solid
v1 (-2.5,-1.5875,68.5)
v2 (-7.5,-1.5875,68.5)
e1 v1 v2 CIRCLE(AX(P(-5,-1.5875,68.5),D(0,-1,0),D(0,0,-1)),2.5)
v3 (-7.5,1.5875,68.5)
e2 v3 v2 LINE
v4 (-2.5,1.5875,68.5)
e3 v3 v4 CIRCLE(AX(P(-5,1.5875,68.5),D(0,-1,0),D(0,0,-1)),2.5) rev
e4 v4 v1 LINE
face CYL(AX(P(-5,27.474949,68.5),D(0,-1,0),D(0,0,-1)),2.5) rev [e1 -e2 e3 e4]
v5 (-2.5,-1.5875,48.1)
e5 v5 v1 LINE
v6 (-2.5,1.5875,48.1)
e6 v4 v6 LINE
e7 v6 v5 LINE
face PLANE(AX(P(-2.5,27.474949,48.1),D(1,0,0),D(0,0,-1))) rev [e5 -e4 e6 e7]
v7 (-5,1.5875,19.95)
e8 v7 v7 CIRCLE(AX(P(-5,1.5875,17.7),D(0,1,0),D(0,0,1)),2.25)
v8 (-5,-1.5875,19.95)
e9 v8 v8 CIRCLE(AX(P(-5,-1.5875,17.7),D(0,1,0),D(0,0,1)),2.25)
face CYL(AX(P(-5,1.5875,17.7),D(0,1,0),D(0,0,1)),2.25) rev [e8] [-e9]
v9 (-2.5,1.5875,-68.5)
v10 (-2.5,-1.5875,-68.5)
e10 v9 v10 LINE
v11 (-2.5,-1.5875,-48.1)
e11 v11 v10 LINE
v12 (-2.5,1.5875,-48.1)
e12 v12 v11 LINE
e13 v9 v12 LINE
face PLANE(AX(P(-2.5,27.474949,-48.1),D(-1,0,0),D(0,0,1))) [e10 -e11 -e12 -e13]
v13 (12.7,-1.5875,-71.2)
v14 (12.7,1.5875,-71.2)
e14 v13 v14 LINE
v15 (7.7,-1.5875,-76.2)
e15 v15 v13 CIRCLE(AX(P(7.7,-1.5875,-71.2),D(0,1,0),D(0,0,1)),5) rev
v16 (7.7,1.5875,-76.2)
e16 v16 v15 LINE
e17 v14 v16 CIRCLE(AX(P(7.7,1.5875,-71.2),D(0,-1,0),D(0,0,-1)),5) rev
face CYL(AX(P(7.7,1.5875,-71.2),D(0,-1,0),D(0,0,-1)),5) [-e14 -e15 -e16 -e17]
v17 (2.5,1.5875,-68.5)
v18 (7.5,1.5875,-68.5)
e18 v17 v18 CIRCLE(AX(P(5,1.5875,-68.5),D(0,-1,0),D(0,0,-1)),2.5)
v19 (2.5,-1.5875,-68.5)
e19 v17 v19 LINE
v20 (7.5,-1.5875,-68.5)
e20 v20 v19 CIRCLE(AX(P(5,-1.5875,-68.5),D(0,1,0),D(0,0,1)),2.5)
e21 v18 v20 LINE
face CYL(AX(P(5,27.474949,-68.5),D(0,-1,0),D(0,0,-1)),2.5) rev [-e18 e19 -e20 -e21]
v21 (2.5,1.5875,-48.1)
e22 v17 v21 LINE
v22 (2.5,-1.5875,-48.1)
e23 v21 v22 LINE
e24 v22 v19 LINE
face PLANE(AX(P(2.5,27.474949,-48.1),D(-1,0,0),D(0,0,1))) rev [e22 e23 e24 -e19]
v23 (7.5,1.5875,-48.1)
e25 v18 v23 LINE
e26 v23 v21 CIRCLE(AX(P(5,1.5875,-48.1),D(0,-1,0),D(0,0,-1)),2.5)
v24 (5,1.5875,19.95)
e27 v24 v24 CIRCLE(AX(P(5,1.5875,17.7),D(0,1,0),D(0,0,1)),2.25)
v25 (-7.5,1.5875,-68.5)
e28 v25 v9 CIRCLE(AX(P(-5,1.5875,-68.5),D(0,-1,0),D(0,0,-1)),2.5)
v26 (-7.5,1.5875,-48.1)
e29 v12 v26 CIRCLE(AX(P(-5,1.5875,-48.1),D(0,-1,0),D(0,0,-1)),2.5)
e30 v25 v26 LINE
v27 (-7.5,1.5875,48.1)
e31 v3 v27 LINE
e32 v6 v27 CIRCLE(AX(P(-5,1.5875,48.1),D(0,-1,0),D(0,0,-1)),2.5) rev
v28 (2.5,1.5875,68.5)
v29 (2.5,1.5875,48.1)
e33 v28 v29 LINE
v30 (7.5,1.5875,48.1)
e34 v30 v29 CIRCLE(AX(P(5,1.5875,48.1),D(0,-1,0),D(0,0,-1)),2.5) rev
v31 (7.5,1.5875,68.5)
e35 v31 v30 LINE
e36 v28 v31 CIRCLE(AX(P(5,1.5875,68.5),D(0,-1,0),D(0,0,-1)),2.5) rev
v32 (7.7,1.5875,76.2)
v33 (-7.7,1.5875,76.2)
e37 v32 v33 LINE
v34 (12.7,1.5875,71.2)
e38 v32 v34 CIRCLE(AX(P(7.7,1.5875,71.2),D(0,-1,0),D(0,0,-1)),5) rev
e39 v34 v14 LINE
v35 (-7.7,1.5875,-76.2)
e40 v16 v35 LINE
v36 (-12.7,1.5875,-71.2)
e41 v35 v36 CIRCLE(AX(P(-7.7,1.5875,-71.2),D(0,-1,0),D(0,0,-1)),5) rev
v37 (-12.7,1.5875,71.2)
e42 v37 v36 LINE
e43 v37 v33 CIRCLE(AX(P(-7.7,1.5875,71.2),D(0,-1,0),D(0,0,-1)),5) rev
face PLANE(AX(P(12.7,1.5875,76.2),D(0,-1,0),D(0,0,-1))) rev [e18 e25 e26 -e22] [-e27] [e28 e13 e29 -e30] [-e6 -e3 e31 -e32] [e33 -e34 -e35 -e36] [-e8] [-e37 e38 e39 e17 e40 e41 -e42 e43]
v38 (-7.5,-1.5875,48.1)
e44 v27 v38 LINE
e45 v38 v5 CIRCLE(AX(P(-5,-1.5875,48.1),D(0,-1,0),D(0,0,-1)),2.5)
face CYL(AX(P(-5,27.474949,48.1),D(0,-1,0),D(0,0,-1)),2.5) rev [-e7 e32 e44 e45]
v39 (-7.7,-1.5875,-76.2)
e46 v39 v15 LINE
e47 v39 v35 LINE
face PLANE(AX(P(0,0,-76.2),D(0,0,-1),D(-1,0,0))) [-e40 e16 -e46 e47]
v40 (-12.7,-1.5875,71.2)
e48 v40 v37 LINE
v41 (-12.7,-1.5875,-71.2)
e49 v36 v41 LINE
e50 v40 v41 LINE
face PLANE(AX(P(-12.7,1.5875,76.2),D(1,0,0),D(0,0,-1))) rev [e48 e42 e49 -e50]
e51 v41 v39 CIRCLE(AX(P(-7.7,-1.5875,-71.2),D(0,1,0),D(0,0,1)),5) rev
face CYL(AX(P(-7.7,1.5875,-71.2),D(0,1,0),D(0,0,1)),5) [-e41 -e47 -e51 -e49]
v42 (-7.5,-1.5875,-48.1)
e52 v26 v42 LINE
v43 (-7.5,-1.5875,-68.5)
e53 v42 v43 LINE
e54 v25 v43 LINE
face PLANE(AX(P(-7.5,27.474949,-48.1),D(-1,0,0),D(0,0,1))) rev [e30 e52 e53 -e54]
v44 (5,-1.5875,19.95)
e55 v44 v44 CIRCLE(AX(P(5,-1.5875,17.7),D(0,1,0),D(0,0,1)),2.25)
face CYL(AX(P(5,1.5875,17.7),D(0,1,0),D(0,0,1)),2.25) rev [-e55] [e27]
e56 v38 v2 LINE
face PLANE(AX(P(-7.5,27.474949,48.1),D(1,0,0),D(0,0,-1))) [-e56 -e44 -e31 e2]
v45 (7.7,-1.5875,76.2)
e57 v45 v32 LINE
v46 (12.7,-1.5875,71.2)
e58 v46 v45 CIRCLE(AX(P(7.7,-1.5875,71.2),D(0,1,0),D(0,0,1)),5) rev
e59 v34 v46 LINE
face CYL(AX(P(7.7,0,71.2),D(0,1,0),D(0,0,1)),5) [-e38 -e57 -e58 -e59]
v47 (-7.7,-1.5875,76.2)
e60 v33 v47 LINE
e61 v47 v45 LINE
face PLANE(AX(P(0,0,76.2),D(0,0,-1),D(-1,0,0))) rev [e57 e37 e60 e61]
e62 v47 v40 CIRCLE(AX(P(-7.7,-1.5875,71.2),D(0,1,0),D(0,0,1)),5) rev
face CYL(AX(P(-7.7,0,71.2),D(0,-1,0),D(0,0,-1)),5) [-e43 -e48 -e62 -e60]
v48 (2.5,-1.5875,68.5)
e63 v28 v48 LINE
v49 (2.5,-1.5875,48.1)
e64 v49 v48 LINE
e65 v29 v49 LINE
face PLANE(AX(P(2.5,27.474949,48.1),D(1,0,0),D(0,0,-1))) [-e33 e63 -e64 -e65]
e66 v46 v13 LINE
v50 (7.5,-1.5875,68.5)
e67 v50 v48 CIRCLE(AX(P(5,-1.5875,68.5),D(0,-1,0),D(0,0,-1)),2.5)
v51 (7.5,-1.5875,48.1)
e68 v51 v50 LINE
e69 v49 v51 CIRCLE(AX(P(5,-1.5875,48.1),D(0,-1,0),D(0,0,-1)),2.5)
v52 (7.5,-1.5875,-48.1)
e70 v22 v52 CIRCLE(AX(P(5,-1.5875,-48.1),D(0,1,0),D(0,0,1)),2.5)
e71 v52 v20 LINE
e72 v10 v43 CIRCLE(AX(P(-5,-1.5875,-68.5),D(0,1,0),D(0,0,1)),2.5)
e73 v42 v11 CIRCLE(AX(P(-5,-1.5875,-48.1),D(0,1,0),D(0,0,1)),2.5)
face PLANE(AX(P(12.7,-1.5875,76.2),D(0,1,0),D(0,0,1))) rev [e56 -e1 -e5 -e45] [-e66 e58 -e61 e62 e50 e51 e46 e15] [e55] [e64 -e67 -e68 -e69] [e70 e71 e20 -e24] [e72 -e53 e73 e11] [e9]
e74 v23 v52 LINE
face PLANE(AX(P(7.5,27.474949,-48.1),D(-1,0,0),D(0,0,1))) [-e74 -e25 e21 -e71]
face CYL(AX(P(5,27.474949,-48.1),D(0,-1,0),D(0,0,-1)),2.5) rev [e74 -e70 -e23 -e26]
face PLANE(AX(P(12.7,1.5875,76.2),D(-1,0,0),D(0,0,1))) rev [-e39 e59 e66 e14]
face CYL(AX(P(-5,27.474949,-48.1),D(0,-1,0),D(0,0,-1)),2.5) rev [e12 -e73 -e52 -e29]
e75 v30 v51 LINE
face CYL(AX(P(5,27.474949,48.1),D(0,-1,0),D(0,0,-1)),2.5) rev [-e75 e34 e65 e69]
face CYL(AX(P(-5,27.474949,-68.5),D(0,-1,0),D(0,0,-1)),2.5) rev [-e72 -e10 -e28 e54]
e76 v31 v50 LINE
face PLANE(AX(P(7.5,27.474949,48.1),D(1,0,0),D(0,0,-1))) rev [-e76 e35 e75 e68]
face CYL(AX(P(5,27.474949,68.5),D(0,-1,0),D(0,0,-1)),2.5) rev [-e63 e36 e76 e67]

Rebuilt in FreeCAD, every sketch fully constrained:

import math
import FreeCAD as App
import Part
import Sketcher
from FreeCAD import Vector


def edges_at(feature, points):
    """Names of the edges that pass closest to the given points."""
    edges = feature.Shape.Edges
    near = lambda p: min(range(len(edges)), key=lambda i: edges[i].distToShape(Part.Vertex(*p))[0])
    return sorted({f"Edge{near(p) + 1}" for p in points})

doc = App.newDocument("Part")
body = doc.addObject("PartDesign::Body", "Body")

# Sketch on XY plane
sketch1 = body.newObject("Sketcher::SketchObject", "Sketch")
sketch1.AttachmentSupport = (doc.getObject("XY_Plane"), [""])
sketch1.MapMode = "FlatFace"
sketch1.addGeometry(Part.LineSegment(Vector(-12.7, 1.6, 0), Vector(-12.7, -1.6, 0)), False)
sketch1.addGeometry(Part.LineSegment(Vector(-12.7, -1.6, 0), Vector(12.7, -1.6, 0)), False)
sketch1.addGeometry(Part.LineSegment(Vector(12.7, -1.6, 0), Vector(12.7, 1.6, 0)), False)
sketch1.addGeometry(Part.LineSegment(Vector(12.7, 1.6, 0), Vector(-12.7, 1.6, 0)), False)
sketch1.addConstraint(Sketcher.Constraint("Coincident", 0, 2, 1, 1))
sketch1.addConstraint(Sketcher.Constraint("Coincident", 1, 2, 2, 1))
sketch1.addConstraint(Sketcher.Constraint("Coincident", 2, 2, 3, 1))
sketch1.addConstraint(Sketcher.Constraint("Coincident", 3, 2, 0, 1))
sketch1.addConstraint(Sketcher.Constraint("Vertical", 0))
sketch1.addConstraint(Sketcher.Constraint("Horizontal", 1))
sketch1.addConstraint(Sketcher.Constraint("Vertical", 2))
sketch1.addConstraint(Sketcher.Constraint("Horizontal", 3))
sketch1.addConstraint(Sketcher.Constraint("Symmetric", 0, 2, 2, 2, -1, 1))
sketch1.addConstraint(Sketcher.Constraint("DistanceX", 1, 1, 1, 2, 25.4))
sketch1.addConstraint(Sketcher.Constraint("DistanceY", 0, 2, 0, 1, 3.175))
pad1 = body.newObject("PartDesign::Pad", "Pad")
pad1.Profile = sketch1
pad1.Type = "TwoLengths"
pad1.Length = 76.2
pad1.Length2 = 76.2

# Sketch on XZ plane
sketch2 = body.newObject("Sketcher::SketchObject", "Sketch001")
sketch2.AttachmentSupport = (doc.getObject("XZ_Plane"), [""])
sketch2.MapMode = "FlatFace"
sketch2.AttachmentOffset = App.Placement(Vector(0, 0, 1.5875), App.Rotation())
sketch2.addGeometry(Part.LineSegment(Vector(-7.5, 68.5, 0), Vector(-7.5, 48.1, 0)), False)
sketch2.addGeometry(Part.ArcOfCircle(Part.Circle(Vector(-5, 48.1, 0), Vector(0, 0, 1), 2.5), math.radians(180), math.radians(360)), False)
sketch2.addGeometry(Part.LineSegment(Vector(-2.5, 48.1, 0), Vector(-2.5, 68.5, 0)), False)
sketch2.addGeometry(Part.ArcOfCircle(Part.Circle(Vector(-5, 68.5, 0), Vector(0, 0, 1), 2.5), math.radians(0), math.radians(180)), False)
sketch2.addGeometry(Part.LineSegment(Vector(2.5, 68.5, 0), Vector(2.5, 48.1, 0)), False)
sketch2.addGeometry(Part.ArcOfCircle(Part.Circle(Vector(5, 48.1, 0), Vector(0, 0, 1), 2.5), math.radians(180), math.radians(360)), False)
sketch2.addGeometry(Part.LineSegment(Vector(7.5, 48.1, 0), Vector(7.5, 68.5, 0)), False)
sketch2.addGeometry(Part.ArcOfCircle(Part.Circle(Vector(5, 68.5, 0), Vector(0, 0, 1), 2.5), math.radians(0), math.radians(180)), False)
sketch2.addConstraint(Sketcher.Constraint("Tangent", 0, 2, 1, 1))
sketch2.addConstraint(Sketcher.Constraint("Tangent", 1, 2, 2, 1))
sketch2.addConstraint(Sketcher.Constraint("Tangent", 2, 2, 3, 1))
sketch2.addConstraint(Sketcher.Constraint("Tangent", 3, 2, 0, 1))
sketch2.addConstraint(Sketcher.Constraint("Tangent", 4, 2, 5, 1))
sketch2.addConstraint(Sketcher.Constraint("Tangent", 5, 2, 6, 1))
sketch2.addConstraint(Sketcher.Constraint("Tangent", 6, 2, 7, 1))
sketch2.addConstraint(Sketcher.Constraint("Tangent", 7, 2, 4, 1))
sketch2.addConstraint(Sketcher.Constraint("Vertical", 0))
sketch2.addConstraint(Sketcher.Constraint("Vertical", 2))
sketch2.addConstraint(Sketcher.Constraint("Vertical", 4))
sketch2.addConstraint(Sketcher.Constraint("Vertical", 6))
sketch2.addConstraint(Sketcher.Constraint("Equal", 3, 5))
sketch2.addConstraint(Sketcher.Constraint("Symmetric", 1, 3, 5, 3, -2))
sketch2.addConstraint(Sketcher.Constraint("Horizontal", 3, 3, 7, 3))
sketch2.addConstraint(Sketcher.Constraint("Radius", 1, 2.5))
sketch2.addConstraint(Sketcher.Constraint("DistanceY", 0, 2, 0, 1, 20.4))
sketch2.addConstraint(Sketcher.Constraint("DistanceX", 1, 3, -1, 1, 5.0))
sketch2.addConstraint(Sketcher.Constraint("DistanceY", -1, 1, 1, 3, 48.1))
pocket1 = body.newObject("PartDesign::Pocket", "Pocket")
pocket1.Profile = sketch2
pocket1.Length = 3.175
doc.recompute()

mirrored = body.newObject("PartDesign::Mirrored", "Mirrored")
mirrored.Originals = [pocket1]
mirrored.MirrorPlane = (doc.getObject("XY_Plane"), [""])
body.Tip = mirrored
doc.recompute()

fillet = body.newObject("PartDesign::Fillet", "Fillet")
fillet.Base = (mirrored, edges_at(mirrored, [
    (12.7, 0, 76.2),
    (-12.7, 0, -76.2),
    (12.7, 0, -76.2),
    (-12.7, 0, 76.2),
]))
fillet.Radius = 5

# Sketch on XZ plane
sketch3 = body.newObject("Sketcher::SketchObject", "Sketch002")
sketch3.AttachmentSupport = (doc.getObject("XZ_Plane"), [""])
sketch3.MapMode = "FlatFace"
sketch3.AttachmentOffset = App.Placement(Vector(0, 0, -1.5875), App.Rotation())
sketch3.addGeometry(Part.Circle(Vector(5, 17.7, 0), Vector(0, 0, 1), 2.2), False)
sketch3.addGeometry(Part.Circle(Vector(-5, 17.7, 0), Vector(0, 0, 1), 2.2), False)
sketch3.addConstraint(Sketcher.Constraint("Equal", 0, 1))
sketch3.addConstraint(Sketcher.Constraint("Symmetric", 0, 3, 1, 3, -2))
sketch3.addConstraint(Sketcher.Constraint("Diameter", 0, 4.5))
sketch3.addConstraint(Sketcher.Constraint("DistanceX", -1, 1, 0, 3, 5.0))
sketch3.addConstraint(Sketcher.Constraint("DistanceY", -1, 1, 0, 3, 17.7))
doc.recompute()
hole = body.newObject("PartDesign::Hole", "Hole")
hole.Profile = sketch3
hole.ThreadType = "None"
hole.Diameter = 4.5
hole.DepthType = "ThroughAll"
hole.Reversed = True

doc.recompute()
